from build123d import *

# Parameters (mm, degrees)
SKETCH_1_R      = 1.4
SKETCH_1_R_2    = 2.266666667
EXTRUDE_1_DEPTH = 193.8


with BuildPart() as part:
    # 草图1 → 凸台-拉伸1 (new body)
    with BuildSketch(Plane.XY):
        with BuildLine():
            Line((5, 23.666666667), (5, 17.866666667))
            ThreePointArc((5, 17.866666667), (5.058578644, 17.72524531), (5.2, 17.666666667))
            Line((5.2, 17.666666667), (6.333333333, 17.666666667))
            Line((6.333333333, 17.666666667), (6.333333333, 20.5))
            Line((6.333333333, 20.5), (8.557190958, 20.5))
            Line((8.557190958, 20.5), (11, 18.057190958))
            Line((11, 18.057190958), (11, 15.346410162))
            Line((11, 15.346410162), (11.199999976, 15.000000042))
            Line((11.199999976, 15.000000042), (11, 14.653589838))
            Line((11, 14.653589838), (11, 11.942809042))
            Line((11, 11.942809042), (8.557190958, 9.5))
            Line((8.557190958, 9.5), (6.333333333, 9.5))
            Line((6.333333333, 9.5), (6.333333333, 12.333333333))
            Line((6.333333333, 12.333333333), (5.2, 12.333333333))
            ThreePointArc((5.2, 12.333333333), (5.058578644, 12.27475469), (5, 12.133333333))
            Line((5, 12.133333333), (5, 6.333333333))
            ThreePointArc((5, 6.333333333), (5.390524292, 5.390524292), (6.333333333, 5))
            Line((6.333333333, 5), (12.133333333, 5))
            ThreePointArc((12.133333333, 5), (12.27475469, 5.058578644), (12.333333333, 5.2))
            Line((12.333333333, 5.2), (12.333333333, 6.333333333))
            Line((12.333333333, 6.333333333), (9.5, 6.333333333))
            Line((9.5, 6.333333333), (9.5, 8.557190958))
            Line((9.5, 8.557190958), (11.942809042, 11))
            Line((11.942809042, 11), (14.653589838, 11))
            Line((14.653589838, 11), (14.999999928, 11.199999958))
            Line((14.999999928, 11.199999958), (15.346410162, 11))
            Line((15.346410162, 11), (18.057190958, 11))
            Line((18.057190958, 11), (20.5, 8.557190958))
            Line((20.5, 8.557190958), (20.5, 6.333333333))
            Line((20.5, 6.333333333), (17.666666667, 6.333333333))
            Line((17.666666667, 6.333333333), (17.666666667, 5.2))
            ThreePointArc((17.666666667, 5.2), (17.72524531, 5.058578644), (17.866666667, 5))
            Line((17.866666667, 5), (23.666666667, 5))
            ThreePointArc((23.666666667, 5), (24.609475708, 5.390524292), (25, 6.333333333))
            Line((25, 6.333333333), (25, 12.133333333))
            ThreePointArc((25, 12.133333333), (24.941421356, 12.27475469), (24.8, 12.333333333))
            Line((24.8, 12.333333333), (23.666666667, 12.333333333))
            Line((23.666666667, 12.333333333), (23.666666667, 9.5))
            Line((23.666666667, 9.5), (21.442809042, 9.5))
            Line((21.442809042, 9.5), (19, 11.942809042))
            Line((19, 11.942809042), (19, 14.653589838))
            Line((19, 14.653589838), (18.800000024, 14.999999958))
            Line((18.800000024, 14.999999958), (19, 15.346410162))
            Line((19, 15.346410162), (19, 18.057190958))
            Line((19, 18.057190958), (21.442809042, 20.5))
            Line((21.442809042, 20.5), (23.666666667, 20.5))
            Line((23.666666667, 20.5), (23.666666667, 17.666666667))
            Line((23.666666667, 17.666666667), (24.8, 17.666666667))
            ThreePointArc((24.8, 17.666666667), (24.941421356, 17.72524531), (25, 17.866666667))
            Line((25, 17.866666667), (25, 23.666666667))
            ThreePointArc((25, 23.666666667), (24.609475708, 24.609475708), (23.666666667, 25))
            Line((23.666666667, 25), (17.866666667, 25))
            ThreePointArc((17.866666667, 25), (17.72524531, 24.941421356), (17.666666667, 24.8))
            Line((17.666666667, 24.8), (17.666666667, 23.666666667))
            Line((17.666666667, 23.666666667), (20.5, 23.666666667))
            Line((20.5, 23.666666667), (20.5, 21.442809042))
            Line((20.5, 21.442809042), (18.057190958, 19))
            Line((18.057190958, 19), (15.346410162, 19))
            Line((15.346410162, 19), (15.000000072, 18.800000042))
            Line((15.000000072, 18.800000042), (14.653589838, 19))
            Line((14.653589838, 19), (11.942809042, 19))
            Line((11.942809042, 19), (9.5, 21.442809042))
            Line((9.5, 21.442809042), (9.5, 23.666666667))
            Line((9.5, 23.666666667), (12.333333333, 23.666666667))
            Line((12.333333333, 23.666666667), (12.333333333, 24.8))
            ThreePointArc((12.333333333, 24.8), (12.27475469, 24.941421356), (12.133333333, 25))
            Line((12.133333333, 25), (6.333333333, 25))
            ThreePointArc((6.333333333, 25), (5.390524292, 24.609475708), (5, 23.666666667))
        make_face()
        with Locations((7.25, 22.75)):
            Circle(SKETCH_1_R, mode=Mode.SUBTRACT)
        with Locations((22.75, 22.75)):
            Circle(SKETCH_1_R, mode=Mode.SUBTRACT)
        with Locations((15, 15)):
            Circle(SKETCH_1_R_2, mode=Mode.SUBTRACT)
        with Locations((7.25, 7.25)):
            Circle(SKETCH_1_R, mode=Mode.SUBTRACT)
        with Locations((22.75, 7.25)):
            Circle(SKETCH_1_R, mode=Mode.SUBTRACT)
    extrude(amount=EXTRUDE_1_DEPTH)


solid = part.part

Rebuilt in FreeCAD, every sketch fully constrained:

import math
import FreeCAD as App
import Part
import Sketcher

V = App.Vector
Q = App.Units.Quantity

doc = App.newDocument("Part")
body = doc.addObject("PartDesign::Body", "Body")

# Sketch on XY plane
sketch1 = doc.addObject("Sketcher::SketchObject", "Sketch")
body.addObject(sketch1)
sketch1.AttachmentSupport = (doc.XY_Plane, [""])
sketch1.MapMode = "FlatFace"
sketch1.addGeometry([
    Part.LineSegment(V(5, 23.666667, 0), V(5, 17.866667, 0)),  # 0
    Part.ArcOfCircle(Part.Circle(V(5.2, 17.866667, 0), V(0, 0, 1), 0.2), math.radians(180), math.radians(270)),  # 1
    Part.LineSegment(V(5.2, 17.666667, 0), V(6.333333, 17.666667, 0)),  # 2
    Part.LineSegment(V(6.333333, 17.666667, 0), V(6.333333, 20.5, 0)),  # 3
    Part.LineSegment(V(6.333333, 20.5, 0), V(8.557191, 20.5, 0)),  # 4
    Part.LineSegment(V(8.557191, 20.5, 0), V(11, 18.057191, 0)),  # 5
    Part.LineSegment(V(11, 18.057191, 0), V(11, 15.34641, 0)),  # 6
    Part.LineSegment(V(11, 15.34641, 0), V(11.2, 15, 0)),  # 7
    Part.LineSegment(V(11.2, 15, 0), V(11, 14.65359, 0)),  # 8
    Part.LineSegment(V(11, 14.65359, 0), V(11, 11.942809, 0)),  # 9
    Part.LineSegment(V(11, 11.942809, 0), V(8.557191, 9.5, 0)),  # 10
    Part.LineSegment(V(8.557191, 9.5, 0), V(6.333333, 9.5, 0)),  # 11
    Part.LineSegment(V(6.333333, 9.5, 0), V(6.333333, 12.333333, 0)),  # 12
    Part.LineSegment(V(6.333333, 12.333333, 0), V(5.2, 12.333333, 0)),  # 13
    Part.ArcOfCircle(Part.Circle(V(5.2, 12.133333, 0), V(0, 0, 1), 0.2), math.radians(90), math.radians(180)),  # 14
    Part.LineSegment(V(5, 12.133333, 0), V(5, 6.333333, 0)),  # 15
    Part.ArcOfCircle(Part.Circle(V(6.333333, 6.333333, 0), V(0, 0, 1), 1.333333), math.radians(-180), math.radians(-90)),  # 16
    Part.LineSegment(V(6.333333, 5, 0), V(12.133333, 5, 0)),  # 17
    Part.ArcOfCircle(Part.Circle(V(12.133333, 5.2, 0), V(0, 0, 1), 0.2), math.radians(-90), math.radians(0)),  # 18
    Part.LineSegment(V(12.333333, 5.2, 0), V(12.333333, 6.333333, 0)),  # 19
    Part.LineSegment(V(12.333333, 6.333333, 0), V(9.5, 6.333333, 0)),  # 20
    Part.LineSegment(V(9.5, 6.333333, 0), V(9.5, 8.557191, 0)),  # 21
    Part.LineSegment(V(9.5, 8.557191, 0), V(11.942809, 11, 0)),  # 22
    Part.LineSegment(V(11.942809, 11, 0), V(14.65359, 11, 0)),  # 23
    Part.LineSegment(V(14.65359, 11, 0), V(15, 11.2, 0)),  # 24
    Part.LineSegment(V(15, 11.2, 0), V(15.34641, 11, 0)),  # 25
    Part.LineSegment(V(15.34641, 11, 0), V(18.057191, 11, 0)),  # 26
    Part.LineSegment(V(18.057191, 11, 0), V(20.5, 8.557191, 0)),  # 27
    Part.LineSegment(V(20.5, 8.557191, 0), V(20.5, 6.333333, 0)),  # 28
    Part.LineSegment(V(20.5, 6.333333, 0), V(17.666667, 6.333333, 0)),  # 29
    Part.LineSegment(V(17.666667, 6.333333, 0), V(17.666667, 5.2, 0)),  # 30
    Part.ArcOfCircle(Part.Circle(V(17.866667, 5.2, 0), V(0, 0, 1), 0.2), math.radians(180), math.radians(270)),  # 31
    Part.LineSegment(V(17.866667, 5, 0), V(23.666667, 5, 0)),  # 32
    Part.ArcOfCircle(Part.Circle(V(23.666667, 6.333333, 0), V(0, 0, 1), 1.333333), math.radians(-90), math.radians(0)),  # 33
    Part.LineSegment(V(25, 6.333333, 0), V(25, 12.133333, 0)),  # 34
    Part.ArcOfCircle(Part.Circle(V(24.8, 12.133333, 0), V(0, 0, 1), 0.2), math.radians(0), math.radians(90)),  # 35
    Part.LineSegment(V(24.8, 12.333333, 0), V(23.666667, 12.333333, 0)),  # 36
    Part.LineSegment(V(23.666667, 12.333333, 0), V(23.666667, 9.5, 0)),  # 37
    Part.LineSegment(V(23.666667, 9.5, 0), V(21.442809, 9.5, 0)),  # 38
    Part.LineSegment(V(21.442809, 9.5, 0), V(19, 11.942809, 0)),  # 39
    Part.LineSegment(V(19, 11.942809, 0), V(19, 14.65359, 0)),  # 40
    Part.LineSegment(V(19, 14.65359, 0), V(18.8, 15, 0)),  # 41
    Part.LineSegment(V(18.8, 15, 0), V(19, 15.34641, 0)),  # 42
    Part.LineSegment(V(19, 15.34641, 0), V(19, 18.057191, 0)),  # 43
    Part.LineSegment(V(19, 18.057191, 0), V(21.442809, 20.5, 0)),  # 44
    Part.LineSegment(V(21.442809, 20.5, 0), V(23.666667, 20.5, 0)),  # 45
    Part.LineSegment(V(23.666667, 20.5, 0), V(23.666667, 17.666667, 0)),  # 46
    Part.LineSegment(V(23.666667, 17.666667, 0), V(24.8, 17.666667, 0)),  # 47
    Part.ArcOfCircle(Part.Circle(V(24.8, 17.866667, 0), V(0, 0, 1), 0.2), math.radians(-90), math.radians(0)),  # 48
    Part.LineSegment(V(25, 17.866667, 0), V(25, 23.666667, 0)),  # 49
    Part.ArcOfCircle(Part.Circle(V(23.666667, 23.666667, 0), V(0, 0, 1), 1.333333), math.radians(0), math.radians(90)),  # 50
    Part.LineSegment(V(23.666667, 25, 0), V(17.866667, 25, 0)),  # 51
    Part.ArcOfCircle(Part.Circle(V(17.866667, 24.8, 0), V(0, 0, 1), 0.2), math.radians(90), math.radians(180)),  # 52
    Part.LineSegment(V(17.666667, 24.8, 0), V(17.666667, 23.666667, 0)),  # 53
    Part.LineSegment(V(17.666667, 23.666667, 0), V(20.5, 23.666667, 0)),  # 54
    Part.LineSegment(V(20.5, 23.666667, 0), V(20.5, 21.442809, 0)),  # 55
    Part.LineSegment(V(20.5, 21.442809, 0), V(18.057191, 19, 0)),  # 56
    Part.LineSegment(V(18.057191, 19, 0), V(15.34641, 19, 0)),  # 57
    Part.LineSegment(V(15.34641, 19, 0), V(15, 18.8, 0)),  # 58
    Part.LineSegment(V(15, 18.8, 0), V(14.65359, 19, 0)),  # 59
    Part.LineSegment(V(14.65359, 19, 0), V(11.942809, 19, 0)),  # 60
    Part.LineSegment(V(11.942809, 19, 0), V(9.5, 21.442809, 0)),  # 61
    Part.LineSegment(V(9.5, 21.442809, 0), V(9.5, 23.666667, 0)),  # 62
    Part.LineSegment(V(9.5, 23.666667, 0), V(12.333333, 23.666667, 0)),  # 63
    Part.LineSegment(V(12.333333, 23.666667, 0), V(12.333333, 24.8, 0)),  # 64
    Part.ArcOfCircle(Part.Circle(V(12.133333, 24.8, 0), V(0, 0, 1), 0.2), math.radians(0), math.radians(90)),  # 65
    Part.LineSegment(V(12.133333, 25, 0), V(6.333333, 25, 0)),  # 66
    Part.ArcOfCircle(Part.Circle(V(6.333333, 23.666667, 0), V(0, 0, 1), 1.333333), math.radians(90), math.radians(180)),  # 67
    Part.Circle(V(7.25, 7.25, 0), V(0, 0, 1), 1.4),  # 68
    Part.Circle(V(22.75, 7.25, 0), V(0, 0, 1), 1.4),  # 69
    Part.Circle(V(7.25, 22.75, 0), V(0, 0, 1), 1.4),  # 70
    Part.Circle(V(15, 15, 0), V(0, 0, 1), 2.266667),  # 71
    Part.Circle(V(22.75, 22.75, 0), V(0, 0, 1), 1.4),  # 72
], False)
sketch1.addConstraint([
    Sketcher.Constraint("Tangent", 0, 2, 1, 1),
    Sketcher.Constraint("Tangent", 1, 2, 2, 1),
    Sketcher.Constraint("Coincident", 2, 2, 3, 1),
    Sketcher.Constraint("Coincident", 3, 2, 4, 1),
    Sketcher.Constraint("Coincident", 4, 2, 5, 1),
    Sketcher.Constraint("Coincident", 5, 2, 6, 1),
    Sketcher.Constraint("Coincident", 6, 2, 7, 1),
    Sketcher.Constraint("Coincident", 7, 2, 8, 1),
    Sketcher.Constraint("Coincident", 8, 2, 9, 1),
    Sketcher.Constraint("Coincident", 9, 2, 10, 1),
    Sketcher.Constraint("Coincident", 10, 2, 11, 1),
    Sketcher.Constraint("Coincident", 11, 2, 12, 1),
    Sketcher.Constraint("Coincident", 12, 2, 13, 1),
    Sketcher.Constraint("Tangent", 13, 2, 14, 1),
    Sketcher.Constraint("Tangent", 14, 2, 15, 1),
    Sketcher.Constraint("Tangent", 15, 2, 16, 1),
    Sketcher.Constraint("Tangent", 16, 2, 17, 1),
    Sketcher.Constraint("Tangent", 17, 2, 18, 1),
    Sketcher.Constraint("Tangent", 18, 2, 19, 1),
    Sketcher.Constraint("Coincident", 19, 2, 20, 1),
    Sketcher.Constraint("Coincident", 20, 2, 21, 1),
    Sketcher.Constraint("Coincident", 21, 2, 22, 1),
    Sketcher.Constraint("Coincident", 22, 2, 23, 1),
    Sketcher.Constraint("Coincident", 23, 2, 24, 1),
    Sketcher.Constraint("Coincident", 24, 2, 25, 1),
    Sketcher.Constraint("Coincident", 25, 2, 26, 1),
    Sketcher.Constraint("Coincident", 26, 2, 27, 1),
    Sketcher.Constraint("Coincident", 27, 2, 28, 1),
    Sketcher.Constraint("Coincident", 28, 2, 29, 1),
    Sketcher.Constraint("Coincident", 29, 2, 30, 1),
    Sketcher.Constraint("Tangent", 30, 2, 31, 1),
    Sketcher.Constraint("Tangent", 31, 2, 32, 1),
    Sketcher.Constraint("Tangent", 32, 2, 33, 1),
    Sketcher.Constraint("Tangent", 33, 2, 34, 1),
    Sketcher.Constraint("Tangent", 34, 2, 35, 1),
    Sketcher.Constraint("Tangent", 35, 2, 36, 1),
    Sketcher.Constraint("Coincident", 36, 2, 37, 1),
    Sketcher.Constraint("Coincident", 37, 2, 38, 1),
    Sketcher.Constraint("Coincident", 38, 2, 39, 1),
    Sketcher.Constraint("Coincident", 39, 2, 40, 1),
    Sketcher.Constraint("Coincident", 40, 2, 41, 1),
    Sketcher.Constraint("Coincident", 41, 2, 42, 1),
    Sketcher.Constraint("Coincident", 42, 2, 43, 1),
    Sketcher.Constraint("Coincident", 43, 2, 44, 1),
    Sketcher.Constraint("Coincident", 44, 2, 45, 1),
    Sketcher.Constraint("Coincident", 45, 2, 46, 1),
    Sketcher.Constraint("Coincident", 46, 2, 47, 1),
    Sketcher.Constraint("Tangent", 47, 2, 48, 1),
    Sketcher.Constraint("Tangent", 48, 2, 49, 1),
    Sketcher.Constraint("Tangent", 49, 2, 50, 1),
    Sketcher.Constraint("Tangent", 50, 2, 51, 1),
    Sketcher.Constraint("Tangent", 51, 2, 52, 1),
    Sketcher.Constraint("Tangent", 52, 2, 53, 1),
    Sketcher.Constraint("Coincident", 53, 2, 54, 1),
    Sketcher.Constraint("Coincident", 54, 2, 55, 1),
    Sketcher.Constraint("Coincident", 55, 2, 56, 1),
    Sketcher.Constraint("Coincident", 56, 2, 57, 1),
    Sketcher.Constraint("Coincident", 57, 2, 58, 1),
    Sketcher.Constraint("Coincident", 58, 2, 59, 1),
    Sketcher.Constraint("Coincident", 59, 2, 60, 1),
    Sketcher.Constraint("Coincident", 60, 2, 61, 1),
    Sketcher.Constraint("Coincident", 61, 2, 62, 1),
    Sketcher.Constraint("Coincident", 62, 2, 63, 1),
    Sketcher.Constraint("Coincident", 63, 2, 64, 1),
    Sketcher.Constraint("Tangent", 64, 2, 65, 1),
    Sketcher.Constraint("Tangent", 65, 2, 66, 1),
    Sketcher.Constraint("Tangent", 66, 2, 67, 1),
    Sketcher.Constraint("Tangent", 67, 2, 0, 1),
    Sketcher.Constraint("Vertical", 0),
    Sketcher.Constraint("Horizontal", 2),
    Sketcher.Constraint("Vertical", 3),
    Sketcher.Constraint("Horizontal", 4),
    Sketcher.Constraint("Vertical", 6),
    Sketcher.Constraint("Vertical", 9),
    Sketcher.Constraint("Horizontal", 11),
    Sketcher.Constraint("Vertical", 12),
    Sketcher.Constraint("Horizontal", 13),
    Sketcher.Constraint("Vertical", 15),
    Sketcher.Constraint("Horizontal", 17),
    Sketcher.Constraint("Vertical", 19),
    Sketcher.Constraint("Horizontal", 20),
    Sketcher.Constraint("Vertical", 21),
    Sketcher.Constraint("Horizontal", 23),
    Sketcher.Constraint("Horizontal", 26),
    Sketcher.Constraint("Vertical", 28),
    Sketcher.Constraint("Horizontal", 29),
    Sketcher.Constraint("Vertical", 30),
    Sketcher.Constraint("Horizontal", 32),
    Sketcher.Constraint("Vertical", 34),
    Sketcher.Constraint("Horizontal", 36),
    Sketcher.Constraint("Vertical", 37),
    Sketcher.Constraint("Horizontal", 38),
    Sketcher.Constraint("Vertical", 40),
    Sketcher.Constraint("Vertical", 43),
    Sketcher.Constraint("Horizontal", 45),
    Sketcher.Constraint("Vertical", 46),
    Sketcher.Constraint("Horizontal", 47),
    Sketcher.Constraint("Vertical", 49),
    Sketcher.Constraint("Horizontal", 51),
    Sketcher.Constraint("Vertical", 53),
    Sketcher.Constraint("Horizontal", 54),
    Sketcher.Constraint("Vertical", 55),
    Sketcher.Constraint("Horizontal", 57),
    Sketcher.Constraint("Horizontal", 60),
    Sketcher.Constraint("Vertical", 62),
    Sketcher.Constraint("Horizontal", 63),
    Sketcher.Constraint("Vertical", 64),
    Sketcher.Constraint("Horizontal", 66),
    Sketcher.Constraint("Equal", 1, 14),
    Sketcher.Constraint("Equal", 14, 18),
    Sketcher.Constraint("Equal", 18, 31),
    Sketcher.Constraint("Equal", 16, 33),
    Sketcher.Constraint("Equal", 31, 35),
    Sketcher.Constraint("Equal", 35, 48),
    Sketcher.Constraint("Equal", 33, 50),
    Sketcher.Constraint("Equal", 48, 52),
    Sketcher.Constraint("Equal", 52, 65),
    Sketcher.Constraint("Equal", 50, 67),
    Sketcher.Constraint("Equal", 68, 69),
    Sketcher.Constraint("Equal", 69, 70),
    Sketcher.Constraint("Equal", 70, 72),
    Sketcher.Constraint("Perpendicular", 5, 10),
    Sketcher.Constraint("Parallel", 10, 22),
    Sketcher.Constraint("Perpendicular", 7, 24),
    Sketcher.Constraint("Perpendicular", 8, 25),
    Sketcher.Constraint("Perpendicular", 22, 27),
    Sketcher.Constraint("Parallel", 27, 39),
    Sketcher.Constraint("Perpendicular", 24, 41),
    Sketcher.Constraint("Perpendicular", 25, 42),
    Sketcher.Constraint("Perpendicular", 39, 44),
    Sketcher.Constraint("Parallel", 44, 56),
    Sketcher.Constraint("Perpendicular", 41, 58),
    Sketcher.Constraint("Perpendicular", 42, 59),
    Sketcher.Constraint("Perpendicular", 56, 61),
    Sketcher.Constraint("Horizontal", 18, 3, 31, 3),
    Sketcher.Constraint("Horizontal", 14, 3, 35, 3),
    Sketcher.Constraint("Horizontal", 1, 3, 48, 3),
    Sketcher.Constraint("Horizontal", 52, 3, 65, 3),
    Sketcher.Constraint("Horizontal", 68, 3, 69, 3),
    Sketcher.Constraint("Horizontal", 70, 3, 72, 3),
    Sketcher.Constraint("Horizontal", 71, 3, 7, 2),
    Sketcher.Constraint("Horizontal", 15, 2, 19, 2),
    Sketcher.Constraint("Horizontal", 23, 2, 25, 2),
    Sketcher.Constraint("Horizontal", 21, 2, 27, 2),
    Sketcher.Constraint("Horizontal", 20, 2, 28, 2),
    Sketcher.Constraint("Horizontal", 11, 2, 37, 2),
    Sketcher.Constraint("Horizontal", 9, 2, 39, 2),
    Sketcher.Constraint("Horizontal", 8, 2, 40, 2),
    Sketcher.Constraint("Horizontal", 7, 2, 41, 2),
    Sketcher.Constraint("Horizontal", 6, 2, 42, 2),
    Sketcher.Constraint("Horizontal", 5, 2, 43, 2),
    Sketcher.Constraint("Horizontal", 4, 2, 44, 2),
    Sketcher.Constraint("Horizontal", 49, 2, 53, 2),
    Sketcher.Constraint("Horizontal", 57, 2, 59, 2),
    Sketcher.Constraint("Horizontal", 55, 2, 61, 2),
    Sketcher.Constraint("Horizontal", 54, 2, 62, 2),
    Sketcher.Constraint("Vertical", 1, 3, 14, 3),
    Sketcher.Constraint("Vertical", 35, 3, 48, 3),
    Sketcher.Constraint("Vertical", 31, 3, 52, 3),
    Sketcher.Constraint("Vertical", 18, 3, 65, 3),
    Sketcher.Constraint("Vertical", 68, 3, 70, 3),
    Sketcher.Constraint("Vertical", 69, 3, 72, 3),
    Sketcher.Constraint("Vertical", 67, 3, 2, 2),
    Sketcher.Constraint("Vertical", 6, 2, 8, 2),
    Sketcher.Constraint("Vertical", 4, 2, 10, 2),
    Sketcher.Constraint("Vertical", 3, 2, 11, 2),
    Sketcher.Constraint("Vertical", 71, 3, 24, 2),
    Sketcher.Constraint("Vertical", 32, 2, 36, 2),
    Sketcher.Constraint("Vertical", 40, 2, 42, 2),
    Sketcher.Constraint("Vertical", 38, 2, 44, 2),
    Sketcher.Constraint("Vertical", 37, 2, 45, 2),
    Sketcher.Constraint("Vertical", 28, 2, 54, 2),
    Sketcher.Constraint("Vertical", 26, 2, 56, 2),
    Sketcher.Constraint("Vertical", 25, 2, 57, 2),
    Sketcher.Constraint("Vertical", 24, 2, 58, 2),
    Sketcher.Constraint("Vertical", 22, 2, 60, 2),
    Sketcher.Constraint("Equal", 23, 26),
    Sketcher.Constraint("Equal", 20, 29),
    Sketcher.Constraint("Equal", 17, 32),
    Sketcher.Constraint("Equal", 11, 38),
    Sketcher.Constraint("Equal", 66, 0),
    Sketcher.Constraint("Equal", 63, 3),
    Sketcher.Constraint("Equal", 60, 6),
    Sketcher.Constraint("Equal", 6, 9),
    Sketcher.Constraint("Equal", 3, 12),
    Sketcher.Constraint("Equal", 0, 15),
    Sketcher.Constraint("Equal", 45, 21),
    Sketcher.Constraint("Equal", 28, 55),
    Sketcher.Constraint("Equal", 10, 22),
    Sketcher.Constraint("Equal", 8, 24),
    Sketcher.Constraint("Diameter", 68, Q("2.8 mm")),
    Sketcher.Constraint("Radius", 1, Q("0.2 mm")),
    Sketcher.Constraint("Angle", 7, Q("-60 deg")),
    Sketcher.Constraint("DistanceX", 17, 1, 17, 2, Q("5.8 mm")),
    Sketcher.Constraint("DistanceX", -1, 1, 71, 3, Q("15 mm")),
    Sketcher.Constraint("DistanceY", -1, 1, 71, 3, Q("15 mm")),
    Sketcher.Constraint("DistanceX", -1, 1, 0, 2, Q("5 mm")),
    Sketcher.Constraint("DistanceX", -1, 1, 5, 2, Q("11 mm")),
    Sketcher.Constraint("Distance", 7, Q("0.4 mm")),
    Sketcher.Constraint("DistanceY", -1, 1, 3, 2, Q("20.5 mm")),
    Sketcher.Constraint("DistanceX", -1, 1, 68, 3, Q("7.25 mm")),
    Sketcher.Constraint("DistanceY", -1, 1, 68, 3, Q("7.25 mm")),
    Sketcher.Constraint("DistanceX", -1, 1, 69, 3, Q("22.75 mm")),
    Sketcher.Constraint("DistanceY", -1, 1, 70, 3, Q("22.75 mm")),
    Sketcher.Constraint("Diameter", 71, Q("4.533333 mm")),
    Sketcher.Constraint("Radius", 16, Q("1.333333 mm")),
    Sketcher.Constraint("DistanceX", 23, 1, 23, 2, Q("2.710781 mm")),
])
pad1 = doc.addObject("PartDesign::Pad", "Pad")
body.addObject(pad1)
pad1.Profile = sketch1
pad1.Length = 193.8

doc.recompute()
